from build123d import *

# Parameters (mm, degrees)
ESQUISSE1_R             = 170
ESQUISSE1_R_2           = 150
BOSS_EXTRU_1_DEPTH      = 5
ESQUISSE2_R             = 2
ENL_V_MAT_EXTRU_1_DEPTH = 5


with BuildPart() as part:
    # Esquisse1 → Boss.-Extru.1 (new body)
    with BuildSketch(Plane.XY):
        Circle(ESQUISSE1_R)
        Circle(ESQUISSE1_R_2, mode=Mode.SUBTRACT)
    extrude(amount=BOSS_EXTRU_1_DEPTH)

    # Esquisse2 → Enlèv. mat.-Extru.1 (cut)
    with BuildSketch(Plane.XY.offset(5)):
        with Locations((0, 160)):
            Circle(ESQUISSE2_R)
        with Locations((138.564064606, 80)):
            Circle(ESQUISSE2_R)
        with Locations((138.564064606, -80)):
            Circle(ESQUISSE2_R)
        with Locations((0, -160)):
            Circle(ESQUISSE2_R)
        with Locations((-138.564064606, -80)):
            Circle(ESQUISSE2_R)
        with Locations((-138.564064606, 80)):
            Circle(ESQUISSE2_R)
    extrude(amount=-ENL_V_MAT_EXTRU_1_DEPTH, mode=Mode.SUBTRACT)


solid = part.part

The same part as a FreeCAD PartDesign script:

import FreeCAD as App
import Part
import Sketcher
from FreeCAD import Vector
Q = App.Units.Quantity

doc = App.newDocument("Part")
params = doc.addObject("Spreadsheet::Sheet", "Params")
for row, (alias, value) in enumerate([
    ("sketch1_diameter", "340 mm"),
    ("sketch1_diameter2", "300 mm"),
    ("pad1_length", "5 mm"),
    ("sketch2_diameter", "4 mm"),
    ("pocket1_length", "5 mm"),
], start=1):
    params.set(f"A{row}", alias)
    params.set(f"B{row}", "=" + value)
    params.setAlias(f"B{row}", alias)

body = doc.addObject("PartDesign::Body", "Body")

# Sketch on XY plane
sketch1 = body.newObject("Sketcher::SketchObject", "Sketch")
sketch1.AttachmentSupport = (doc.getObject("XY_Plane"), [""])
sketch1.MapMode = "FlatFace"
sketch1.addGeometry([
    Part.Circle(Vector(0, 0, 0), Vector(0, 0, 1), 170),
    Part.Circle(Vector(0, 0, 0), Vector(0, 0, 1), 150),
], False)
sketch1.addConstraint([
    Sketcher.Constraint("Coincident", 0, 3, -1, 1),
    Sketcher.Constraint("Coincident", 1, 3, -1, 1),
    Sketcher.Constraint("Diameter", 0, Q("340 mm")),
    Sketcher.Constraint("Diameter", 1, Q("300 mm")),
])
sketch1.setExpression("Constraints[2]", "Params.sketch1_diameter")
sketch1.setExpression("Constraints[3]", "Params.sketch1_diameter2")
pad1 = body.newObject("PartDesign::Pad", "Pad")
pad1.Profile = sketch1
pad1.setExpression("Length", "Params.pad1_length")

# Sketch on XY plane
sketch2 = body.newObject("Sketcher::SketchObject", "Sketch001")
sketch2.AttachmentSupport = (doc.getObject("XY_Plane"), [""])
sketch2.MapMode = "FlatFace"
sketch2.AttachmentOffset = App.Placement(Vector(0, 0, 5), App.Rotation())
sketch2.addGeometry([
    Part.Circle(Vector(0, 160, 0), Vector(0, 0, 1), 2),  # 0
    Part.Circle(Vector(138.564065, 80, 0), Vector(0, 0, 1), 2),  # 1
    Part.Circle(Vector(138.564065, -80, 0), Vector(0, 0, 1), 2),  # 2
    Part.Circle(Vector(0, -160, 0), Vector(0, 0, 1), 2),  # 3
    Part.Circle(Vector(-138.564065, -80, 0), Vector(0, 0, 1), 2),  # 4
    Part.Circle(Vector(-138.564065, 80, 0), Vector(0, 0, 1), 2),  # 5
], False)
sketch2.addConstraint([
    Sketcher.Constraint("Equal", 0, 1),
    Sketcher.Constraint("Equal", 1, 2),
    Sketcher.Constraint("Equal", 2, 3),
    Sketcher.Constraint("Equal", 3, 4),
    Sketcher.Constraint("Equal", 4, 5),
    Sketcher.Constraint("Symmetric", 0, 3, 3, 3, -1, 1),
    Sketcher.Constraint("Symmetric", 1, 3, 4, 3, -1, 1),
    Sketcher.Constraint("Symmetric", 2, 3, 5, 3, -1, 1),
    Sketcher.Constraint("Symmetric", 2, 3, 4, 3, -2),
    Sketcher.Constraint("PointOnObject", 0, 3, -2),
    Sketcher.Constraint("Diameter", 0, Q("4 mm")),
    Sketcher.Constraint("DistanceY", -1, 1, 0, 3, Q("160 mm")),
    Sketcher.Constraint("DistanceY", -1, 1, 1, 3, Q("80 mm")),
    Sketcher.Constraint("DistanceX", 4, 3, 2, 3, Q("277.128129 mm")),
])
sketch2.setExpression("Constraints[10]", "Params.sketch2_diameter")
pocket1 = body.newObject("PartDesign::Pocket", "Pocket")
pocket1.Profile = sketch2
pocket1.setExpression("Length", "Params.pocket1_length")

doc.recompute()
